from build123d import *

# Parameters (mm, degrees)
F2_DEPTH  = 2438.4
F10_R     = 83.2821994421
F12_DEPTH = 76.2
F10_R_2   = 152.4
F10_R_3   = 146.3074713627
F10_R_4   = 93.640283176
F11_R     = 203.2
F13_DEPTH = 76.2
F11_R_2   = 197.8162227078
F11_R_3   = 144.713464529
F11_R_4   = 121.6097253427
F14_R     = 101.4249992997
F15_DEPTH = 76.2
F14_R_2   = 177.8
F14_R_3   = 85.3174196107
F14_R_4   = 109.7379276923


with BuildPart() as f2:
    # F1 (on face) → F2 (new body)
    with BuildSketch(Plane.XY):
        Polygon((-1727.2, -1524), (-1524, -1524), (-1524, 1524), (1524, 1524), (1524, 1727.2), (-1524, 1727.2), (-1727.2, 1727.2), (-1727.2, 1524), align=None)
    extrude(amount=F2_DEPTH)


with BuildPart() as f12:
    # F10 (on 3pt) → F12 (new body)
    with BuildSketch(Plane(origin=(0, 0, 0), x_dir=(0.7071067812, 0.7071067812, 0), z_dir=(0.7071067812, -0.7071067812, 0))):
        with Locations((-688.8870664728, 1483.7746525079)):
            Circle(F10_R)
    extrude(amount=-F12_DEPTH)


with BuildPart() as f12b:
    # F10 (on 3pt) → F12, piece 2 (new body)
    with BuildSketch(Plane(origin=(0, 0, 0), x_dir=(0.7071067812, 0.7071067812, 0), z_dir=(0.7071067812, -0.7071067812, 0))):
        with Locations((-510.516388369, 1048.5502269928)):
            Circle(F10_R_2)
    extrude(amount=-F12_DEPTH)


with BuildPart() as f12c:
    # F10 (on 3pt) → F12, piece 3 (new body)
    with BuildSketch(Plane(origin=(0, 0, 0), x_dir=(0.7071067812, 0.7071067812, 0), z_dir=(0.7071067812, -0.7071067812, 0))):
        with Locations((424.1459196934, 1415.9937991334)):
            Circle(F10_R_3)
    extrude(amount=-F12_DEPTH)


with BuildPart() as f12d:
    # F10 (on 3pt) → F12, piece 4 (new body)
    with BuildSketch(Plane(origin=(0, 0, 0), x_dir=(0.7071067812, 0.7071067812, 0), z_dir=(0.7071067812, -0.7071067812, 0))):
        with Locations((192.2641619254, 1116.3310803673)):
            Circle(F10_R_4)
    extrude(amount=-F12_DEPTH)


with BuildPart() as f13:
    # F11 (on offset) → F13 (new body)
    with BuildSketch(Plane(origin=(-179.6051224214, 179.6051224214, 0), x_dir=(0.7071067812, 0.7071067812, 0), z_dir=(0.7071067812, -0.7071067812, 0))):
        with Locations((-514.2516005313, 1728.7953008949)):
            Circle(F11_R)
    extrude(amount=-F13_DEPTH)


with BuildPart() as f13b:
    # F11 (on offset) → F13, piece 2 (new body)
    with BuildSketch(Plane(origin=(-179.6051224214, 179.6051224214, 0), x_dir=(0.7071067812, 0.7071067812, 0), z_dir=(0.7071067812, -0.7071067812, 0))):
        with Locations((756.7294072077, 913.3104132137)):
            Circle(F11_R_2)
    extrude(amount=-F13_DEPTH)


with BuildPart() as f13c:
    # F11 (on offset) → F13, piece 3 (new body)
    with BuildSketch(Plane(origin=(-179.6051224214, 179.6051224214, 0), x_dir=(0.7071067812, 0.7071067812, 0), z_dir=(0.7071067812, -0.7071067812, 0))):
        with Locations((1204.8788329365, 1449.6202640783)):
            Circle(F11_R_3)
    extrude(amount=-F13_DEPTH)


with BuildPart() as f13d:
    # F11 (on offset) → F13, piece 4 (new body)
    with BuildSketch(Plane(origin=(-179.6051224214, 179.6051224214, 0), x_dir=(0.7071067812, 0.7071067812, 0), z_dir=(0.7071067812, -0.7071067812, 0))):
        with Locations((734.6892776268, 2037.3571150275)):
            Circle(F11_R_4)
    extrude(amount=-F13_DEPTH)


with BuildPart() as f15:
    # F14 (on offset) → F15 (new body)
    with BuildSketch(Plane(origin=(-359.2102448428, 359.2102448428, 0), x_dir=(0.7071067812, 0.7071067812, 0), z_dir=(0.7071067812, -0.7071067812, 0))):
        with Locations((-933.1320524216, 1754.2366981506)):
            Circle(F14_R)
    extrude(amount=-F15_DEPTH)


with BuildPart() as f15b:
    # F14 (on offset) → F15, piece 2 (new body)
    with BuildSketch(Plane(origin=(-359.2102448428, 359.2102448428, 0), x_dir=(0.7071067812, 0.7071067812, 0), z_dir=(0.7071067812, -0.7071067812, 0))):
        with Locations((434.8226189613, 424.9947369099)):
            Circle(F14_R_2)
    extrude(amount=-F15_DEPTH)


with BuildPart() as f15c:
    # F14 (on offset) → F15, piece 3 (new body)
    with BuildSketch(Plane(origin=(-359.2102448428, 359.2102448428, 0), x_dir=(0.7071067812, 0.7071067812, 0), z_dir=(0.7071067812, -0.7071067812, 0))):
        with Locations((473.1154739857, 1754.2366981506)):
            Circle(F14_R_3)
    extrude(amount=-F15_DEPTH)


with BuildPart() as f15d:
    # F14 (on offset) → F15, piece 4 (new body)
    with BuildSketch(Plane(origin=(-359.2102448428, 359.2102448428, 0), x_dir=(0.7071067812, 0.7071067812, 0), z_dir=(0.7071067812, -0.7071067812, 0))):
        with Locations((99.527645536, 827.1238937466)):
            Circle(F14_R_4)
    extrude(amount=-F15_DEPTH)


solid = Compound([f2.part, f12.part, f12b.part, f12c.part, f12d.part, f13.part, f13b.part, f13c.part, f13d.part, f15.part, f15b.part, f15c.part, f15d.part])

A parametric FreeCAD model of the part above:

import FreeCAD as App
import Part
import Sketcher
Q = App.Units.Quantity

doc = App.newDocument("Part")
body = doc.addObject("PartDesign::Body", "Body")

# Sketch on XY plane
sketch1 = body.newObject("Sketcher::SketchObject", "Sketch")
sketch1.AttachmentSupport = (doc.getObject("XY_Plane"), [""])
sketch1.MapMode = "FlatFace"
sketch1.addGeometry([
    Part.LineSegment(App.Vector(-1727, -1524, 0), App.Vector(-1524, -1524, 0)),  # 0
    Part.LineSegment(App.Vector(-1524, -1524, 0), App.Vector(-1524, 1524, 0)),  # 1
    Part.LineSegment(App.Vector(-1524, 1524, 0), App.Vector(1524, 1524, 0)),  # 2
    Part.LineSegment(App.Vector(1524, 1524, 0), App.Vector(1524, 1727, 0)),  # 3
    Part.LineSegment(App.Vector(1524, 1727, 0), App.Vector(-1727, 1727, 0)),  # 4
    Part.LineSegment(App.Vector(-1727, 1727, 0), App.Vector(-1727, -1524, 0)),  # 5
], False)
sketch1.addConstraint([
    Sketcher.Constraint("Coincident", 0, 2, 1, 1),
    Sketcher.Constraint("Coincident", 1, 2, 2, 1),
    Sketcher.Constraint("Coincident", 2, 2, 3, 1),
    Sketcher.Constraint("Coincident", 3, 2, 4, 1),
    Sketcher.Constraint("Coincident", 4, 2, 5, 1),
    Sketcher.Constraint("Coincident", 5, 2, 0, 1),
    Sketcher.Constraint("Horizontal", 0),
    Sketcher.Constraint("Vertical", 1),
    Sketcher.Constraint("Horizontal", 2),
    Sketcher.Constraint("Vertical", 3),
    Sketcher.Constraint("Horizontal", 4),
    Sketcher.Constraint("Vertical", 5),
    Sketcher.Constraint("Symmetric", 0, 2, 2, 2, -1, 1),
    Sketcher.Constraint("Equal", 2, 1),
    Sketcher.Constraint("Equal", 0, 3),
    Sketcher.Constraint("DistanceX", 0, 1, 0, 2, Q("8 in")),
    Sketcher.Constraint("DistanceX", 2, 1, 2, 2, Q("120 in")),
])
pad1 = body.newObject("PartDesign::Pad", "Pad")
pad1.Profile = sketch1
pad1.Length = Q("96 in")
body2 = doc.addObject("PartDesign::Body", "Body001")

# Sketch on an angled plane
sketch2 = body2.newObject("Sketcher::SketchObject", "Sketch001")
sketch2.Placement = App.Placement(App.Vector(0, 0, 0), App.Rotation(App.Vector(0.707106781, 0.707106781, 0), App.Vector(0, 0, 0.999999999), App.Vector(0.707106781, -0.707106781, 0), "ZXY"))
sketch2.addGeometry(Part.Circle(App.Vector(-689, 1484, 0), App.Vector(0, 0, 1), 83), False)
sketch2.addConstraint([
    Sketcher.Constraint("Diameter", 0, Q("166.564399 mm")),
    Sketcher.Constraint("DistanceY", -1, 1, 0, 3, Q("1483.774651 mm")),
    Sketcher.Constraint("DistanceX", 0, 3, -1, 1, Q("688.887066 mm")),
])
pad2 = body2.newObject("PartDesign::Pad", "Pad001")
pad2.Profile = sketch2
pad2.Length = Q("3 in")
pad2.Reversed = True
body3 = doc.addObject("PartDesign::Body", "Body002")

# Sketch on an angled plane
sketch3 = body3.newObject("Sketcher::SketchObject", "Sketch002")
sketch3.Placement = App.Placement(App.Vector(0, 0, 0), App.Rotation(App.Vector(0.707106781, 0.707106781, 0), App.Vector(0, 0, 0.999999999), App.Vector(0.707106781, -0.707106781, 0), "ZXY"))
sketch3.addGeometry(Part.Circle(App.Vector(-511, 1049, 0), App.Vector(0, 0, 1), 152), False)
sketch3.addConstraint([
    Sketcher.Constraint("Diameter", 0, Q("12 in")),
    Sketcher.Constraint("DistanceX", 0, 3, -1, 1, Q("510.516388 mm")),
    Sketcher.Constraint("DistanceY", -1, 1, 0, 3, Q("1048.550226 mm")),
])
pad3 = body3.newObject("PartDesign::Pad", "Pad002")
pad3.Profile = sketch3
pad3.Length = Q("3 in")
pad3.Reversed = True
body4 = doc.addObject("PartDesign::Body", "Body003")

# Sketch on an angled plane
sketch4 = body4.newObject("Sketcher::SketchObject", "Sketch003")
sketch4.Placement = App.Placement(App.Vector(0, 0, 0), App.Rotation(App.Vector(0.707106781, 0.707106781, 0), App.Vector(0, 0, 0.999999999), App.Vector(0.707106781, -0.707106781, 0), "ZXY"))
sketch4.addGeometry(Part.Circle(App.Vector(424, 1416, 0), App.Vector(0, 0, 1), 146), False)
sketch4.addConstraint([
    Sketcher.Constraint("Diameter", 0, Q("292.614943 mm")),
    Sketcher.Constraint("DistanceX", -1, 1, 0, 3, Q("424.145919 mm")),
    Sketcher.Constraint("DistanceY", -1, 1, 0, 3, Q("1415.993798 mm")),
])
pad4 = body4.newObject("PartDesign::Pad", "Pad003")
pad4.Profile = sketch4
pad4.Length = Q("3 in")
pad4.Reversed = True
body5 = doc.addObject("PartDesign::Body", "Body004")

# Sketch on an angled plane
sketch5 = body5.newObject("Sketcher::SketchObject", "Sketch004")
sketch5.Placement = App.Placement(App.Vector(0, 0, 0), App.Rotation(App.Vector(0.707106781, 0.707106781, 0), App.Vector(0, 0, 0.999999999), App.Vector(0.707106781, -0.707106781, 0), "ZXY"))
sketch5.addGeometry(Part.Circle(App.Vector(192, 1116, 0), App.Vector(0, 0, 1), 94), False)
sketch5.addConstraint([
    Sketcher.Constraint("Diameter", 0, Q("187.280566 mm")),
    Sketcher.Constraint("DistanceX", -1, 1, 0, 3, Q("192.264162 mm")),
    Sketcher.Constraint("DistanceY", -1, 1, 0, 3, Q("1116.331079 mm")),
])
pad5 = body5.newObject("PartDesign::Pad", "Pad004")
pad5.Profile = sketch5
pad5.Length = Q("3 in")
pad5.Reversed = True
body6 = doc.addObject("PartDesign::Body", "Body005")

# Sketch on an angled plane
sketch6 = body6.newObject("Sketcher::SketchObject", "Sketch005")
sketch6.Placement = App.Placement(App.Vector(-179.605122, 179.605122, 0), App.Rotation(App.Vector(0.707106781, 0.707106781, 0), App.Vector(0, 0, 0.999999999), App.Vector(0.707106781, -0.707106781, 0), "ZXY"))
sketch6.addGeometry(Part.Circle(App.Vector(-514, 1729, 0), App.Vector(0, 0, 1), 203), False)
sketch6.addConstraint([
    Sketcher.Constraint("Diameter", 0, Q("16 in")),
    Sketcher.Constraint("DistanceX", 0, 3, -1, 1, Q("514.2516 mm")),
    Sketcher.Constraint("DistanceY", -1, 1, 0, 3, Q("1728.795299 mm")),
])
pad6 = body6.newObject("PartDesign::Pad", "Pad005")
pad6.Profile = sketch6
pad6.Length = Q("3 in")
pad6.Reversed = True
body7 = doc.addObject("PartDesign::Body", "Body006")

# Sketch on an angled plane
sketch7 = body7.newObject("Sketcher::SketchObject", "Sketch006")
sketch7.Placement = App.Placement(App.Vector(-179.605122, 179.605122, 0), App.Rotation(App.Vector(0.707106781, 0.707106781, 0), App.Vector(0, 0, 0.999999999), App.Vector(0.707106781, -0.707106781, 0), "ZXY"))
sketch7.addGeometry(Part.Circle(App.Vector(757, 913, 0), App.Vector(0, 0, 1), 198), False)
sketch7.addConstraint([
    Sketcher.Constraint("Diameter", 0, Q("395.632445 mm")),
    Sketcher.Constraint("DistanceX", -1, 1, 0, 3, Q("756.729407 mm")),
    Sketcher.Constraint("DistanceY", -1, 1, 0, 3, Q("913.310412 mm")),
])
pad7 = body7.newObject("PartDesign::Pad", "Pad006")
pad7.Profile = sketch7
pad7.Length = Q("3 in")
pad7.Reversed = True
body8 = doc.addObject("PartDesign::Body", "Body007")

# Sketch on an angled plane
sketch8 = body8.newObject("Sketcher::SketchObject", "Sketch007")
sketch8.Placement = App.Placement(App.Vector(-179.605122, 179.605122, 0), App.Rotation(App.Vector(0.707106781, 0.707106781, 0), App.Vector(0, 0, 0.999999999), App.Vector(0.707106781, -0.707106781, 0), "ZXY"))
sketch8.addGeometry(Part.Circle(App.Vector(1205, 1450, 0), App.Vector(0, 0, 1), 145), False)
sketch8.addConstraint([
    Sketcher.Constraint("Diameter", 0, Q("289.426929 mm")),
    Sketcher.Constraint("DistanceX", -1, 1, 0, 3, Q("1204.878832 mm")),
    Sketcher.Constraint("DistanceY", -1, 1, 0, 3, Q("1449.620263 mm")),
])
pad8 = body8.newObject("PartDesign::Pad", "Pad007")
pad8.Profile = sketch8
pad8.Length = Q("3 in")
pad8.Reversed = True
body9 = doc.addObject("PartDesign::Body", "Body008")

# Sketch on an angled plane
sketch9 = body9.newObject("Sketcher::SketchObject", "Sketch008")
sketch9.Placement = App.Placement(App.Vector(-179.605122, 179.605122, 0), App.Rotation(App.Vector(0.707106781, 0.707106781, 0), App.Vector(0, 0, 0.999999999), App.Vector(0.707106781, -0.707106781, 0), "ZXY"))
sketch9.addGeometry(Part.Circle(App.Vector(735, 2037, 0), App.Vector(0, 0, 1), 122), False)
sketch9.addConstraint([
    Sketcher.Constraint("Diameter", 0, Q("243.219451 mm")),
    Sketcher.Constraint("DistanceX", -1, 1, 0, 3, Q("734.689277 mm")),
    Sketcher.Constraint("DistanceY", -1, 1, 0, 3, Q("2037.357113 mm")),
])
pad9 = body9.newObject("PartDesign::Pad", "Pad008")
pad9.Profile = sketch9
pad9.Length = Q("3 in")
pad9.Reversed = True
body10 = doc.addObject("PartDesign::Body", "Body009")

# Sketch on an angled plane
sketch10 = body10.newObject("Sketcher::SketchObject", "Sketch009")
sketch10.Placement = App.Placement(App.Vector(-359.210245, 359.210245, 0), App.Rotation(App.Vector(0.707106781, 0.707106781, 0), App.Vector(0, 0, 0.999999999), App.Vector(0.707106781, -0.707106781, 0), "ZXY"))
sketch10.addGeometry(Part.Circle(App.Vector(-933, 1754, 0), App.Vector(0, 0, 1), 101), False)
sketch10.addConstraint([
    Sketcher.Constraint("Diameter", 0, Q("202.849999 mm")),
    Sketcher.Constraint("DistanceX", 0, 3, -1, 1, Q("933.132052 mm")),
    Sketcher.Constraint("DistanceY", -1, 1, 0, 3, Q("1754.236696 mm")),
])
pad10 = body10.newObject("PartDesign::Pad", "Pad009")
pad10.Profile = sketch10
pad10.Length = Q("3 in")
pad10.Reversed = True
body11 = doc.addObject("PartDesign::Body", "Body010")

# Sketch on an angled plane
sketch11 = body11.newObject("Sketcher::SketchObject", "Sketch010")
sketch11.Placement = App.Placement(App.Vector(-359.210245, 359.210245, 0), App.Rotation(App.Vector(0.707106781, 0.707106781, 0), App.Vector(0, 0, 0.999999999), App.Vector(0.707106781, -0.707106781, 0), "ZXY"))
sketch11.addGeometry(Part.Circle(App.Vector(435, 425, 0), App.Vector(0, 0, 1), 178), False)
sketch11.addConstraint([
    Sketcher.Constraint("Diameter", 0, Q("14 in")),
    Sketcher.Constraint("DistanceX", -1, 1, 0, 3, Q("434.822619 mm")),
    Sketcher.Constraint("DistanceY", -1, 1, 0, 3, Q("424.994736 mm")),
])
pad11 = body11.newObject("PartDesign::Pad", "Pad010")
pad11.Profile = sketch11
pad11.Length = Q("3 in")
pad11.Reversed = True
body12 = doc.addObject("PartDesign::Body", "Body011")

# Sketch on an angled plane
sketch12 = body12.newObject("Sketcher::SketchObject", "Sketch011")
sketch12.Placement = App.Placement(App.Vector(-359.210245, 359.210245, 0), App.Rotation(App.Vector(0.707106781, 0.707106781, 0), App.Vector(0, 0, 0.999999999), App.Vector(0.707106781, -0.707106781, 0), "ZXY"))
sketch12.addGeometry(Part.Circle(App.Vector(473, 1754, 0), App.Vector(0, 0, 1), 85), False)
sketch12.addConstraint([
    Sketcher.Constraint("Diameter", 0, Q("170.634839 mm")),
    Sketcher.Constraint("DistanceX", -1, 1, 0, 3, Q("473.115474 mm")),
    Sketcher.Constraint("DistanceY", -1, 1, 0, 3, Q("1754.236696 mm")),
])
pad12 = body12.newObject("PartDesign::Pad", "Pad011")
pad12.Profile = sketch12
pad12.Length = Q("3 in")
pad12.Reversed = True
body13 = doc.addObject("PartDesign::Body", "Body012")

# Sketch on an angled plane
sketch13 = body13.newObject("Sketcher::SketchObject", "Sketch012")
sketch13.Placement = App.Placement(App.Vector(-359.210245, 359.210245, 0), App.Rotation(App.Vector(0.707106781, 0.707106781, 0), App.Vector(0, 0, 0.999999999), App.Vector(0.707106781, -0.707106781, 0), "ZXY"))
sketch13.addGeometry(Part.Circle(App.Vector(100, 827, 0), App.Vector(0, 0, 1), 110), False)
sketch13.addConstraint([
    Sketcher.Constraint("Diameter", 0, Q("219.475855 mm")),
    Sketcher.Constraint("DistanceX", -1, 1, 0, 3, Q("99.527645 mm")),
    Sketcher.Constraint("DistanceY", -1, 1, 0, 3, Q("827.123893 mm")),
])
pad13 = body13.newObject("PartDesign::Pad", "Pad012")
pad13.Profile = sketch13
pad13.Length = Q("3 in")
pad13.Reversed = True

doc.recompute()
